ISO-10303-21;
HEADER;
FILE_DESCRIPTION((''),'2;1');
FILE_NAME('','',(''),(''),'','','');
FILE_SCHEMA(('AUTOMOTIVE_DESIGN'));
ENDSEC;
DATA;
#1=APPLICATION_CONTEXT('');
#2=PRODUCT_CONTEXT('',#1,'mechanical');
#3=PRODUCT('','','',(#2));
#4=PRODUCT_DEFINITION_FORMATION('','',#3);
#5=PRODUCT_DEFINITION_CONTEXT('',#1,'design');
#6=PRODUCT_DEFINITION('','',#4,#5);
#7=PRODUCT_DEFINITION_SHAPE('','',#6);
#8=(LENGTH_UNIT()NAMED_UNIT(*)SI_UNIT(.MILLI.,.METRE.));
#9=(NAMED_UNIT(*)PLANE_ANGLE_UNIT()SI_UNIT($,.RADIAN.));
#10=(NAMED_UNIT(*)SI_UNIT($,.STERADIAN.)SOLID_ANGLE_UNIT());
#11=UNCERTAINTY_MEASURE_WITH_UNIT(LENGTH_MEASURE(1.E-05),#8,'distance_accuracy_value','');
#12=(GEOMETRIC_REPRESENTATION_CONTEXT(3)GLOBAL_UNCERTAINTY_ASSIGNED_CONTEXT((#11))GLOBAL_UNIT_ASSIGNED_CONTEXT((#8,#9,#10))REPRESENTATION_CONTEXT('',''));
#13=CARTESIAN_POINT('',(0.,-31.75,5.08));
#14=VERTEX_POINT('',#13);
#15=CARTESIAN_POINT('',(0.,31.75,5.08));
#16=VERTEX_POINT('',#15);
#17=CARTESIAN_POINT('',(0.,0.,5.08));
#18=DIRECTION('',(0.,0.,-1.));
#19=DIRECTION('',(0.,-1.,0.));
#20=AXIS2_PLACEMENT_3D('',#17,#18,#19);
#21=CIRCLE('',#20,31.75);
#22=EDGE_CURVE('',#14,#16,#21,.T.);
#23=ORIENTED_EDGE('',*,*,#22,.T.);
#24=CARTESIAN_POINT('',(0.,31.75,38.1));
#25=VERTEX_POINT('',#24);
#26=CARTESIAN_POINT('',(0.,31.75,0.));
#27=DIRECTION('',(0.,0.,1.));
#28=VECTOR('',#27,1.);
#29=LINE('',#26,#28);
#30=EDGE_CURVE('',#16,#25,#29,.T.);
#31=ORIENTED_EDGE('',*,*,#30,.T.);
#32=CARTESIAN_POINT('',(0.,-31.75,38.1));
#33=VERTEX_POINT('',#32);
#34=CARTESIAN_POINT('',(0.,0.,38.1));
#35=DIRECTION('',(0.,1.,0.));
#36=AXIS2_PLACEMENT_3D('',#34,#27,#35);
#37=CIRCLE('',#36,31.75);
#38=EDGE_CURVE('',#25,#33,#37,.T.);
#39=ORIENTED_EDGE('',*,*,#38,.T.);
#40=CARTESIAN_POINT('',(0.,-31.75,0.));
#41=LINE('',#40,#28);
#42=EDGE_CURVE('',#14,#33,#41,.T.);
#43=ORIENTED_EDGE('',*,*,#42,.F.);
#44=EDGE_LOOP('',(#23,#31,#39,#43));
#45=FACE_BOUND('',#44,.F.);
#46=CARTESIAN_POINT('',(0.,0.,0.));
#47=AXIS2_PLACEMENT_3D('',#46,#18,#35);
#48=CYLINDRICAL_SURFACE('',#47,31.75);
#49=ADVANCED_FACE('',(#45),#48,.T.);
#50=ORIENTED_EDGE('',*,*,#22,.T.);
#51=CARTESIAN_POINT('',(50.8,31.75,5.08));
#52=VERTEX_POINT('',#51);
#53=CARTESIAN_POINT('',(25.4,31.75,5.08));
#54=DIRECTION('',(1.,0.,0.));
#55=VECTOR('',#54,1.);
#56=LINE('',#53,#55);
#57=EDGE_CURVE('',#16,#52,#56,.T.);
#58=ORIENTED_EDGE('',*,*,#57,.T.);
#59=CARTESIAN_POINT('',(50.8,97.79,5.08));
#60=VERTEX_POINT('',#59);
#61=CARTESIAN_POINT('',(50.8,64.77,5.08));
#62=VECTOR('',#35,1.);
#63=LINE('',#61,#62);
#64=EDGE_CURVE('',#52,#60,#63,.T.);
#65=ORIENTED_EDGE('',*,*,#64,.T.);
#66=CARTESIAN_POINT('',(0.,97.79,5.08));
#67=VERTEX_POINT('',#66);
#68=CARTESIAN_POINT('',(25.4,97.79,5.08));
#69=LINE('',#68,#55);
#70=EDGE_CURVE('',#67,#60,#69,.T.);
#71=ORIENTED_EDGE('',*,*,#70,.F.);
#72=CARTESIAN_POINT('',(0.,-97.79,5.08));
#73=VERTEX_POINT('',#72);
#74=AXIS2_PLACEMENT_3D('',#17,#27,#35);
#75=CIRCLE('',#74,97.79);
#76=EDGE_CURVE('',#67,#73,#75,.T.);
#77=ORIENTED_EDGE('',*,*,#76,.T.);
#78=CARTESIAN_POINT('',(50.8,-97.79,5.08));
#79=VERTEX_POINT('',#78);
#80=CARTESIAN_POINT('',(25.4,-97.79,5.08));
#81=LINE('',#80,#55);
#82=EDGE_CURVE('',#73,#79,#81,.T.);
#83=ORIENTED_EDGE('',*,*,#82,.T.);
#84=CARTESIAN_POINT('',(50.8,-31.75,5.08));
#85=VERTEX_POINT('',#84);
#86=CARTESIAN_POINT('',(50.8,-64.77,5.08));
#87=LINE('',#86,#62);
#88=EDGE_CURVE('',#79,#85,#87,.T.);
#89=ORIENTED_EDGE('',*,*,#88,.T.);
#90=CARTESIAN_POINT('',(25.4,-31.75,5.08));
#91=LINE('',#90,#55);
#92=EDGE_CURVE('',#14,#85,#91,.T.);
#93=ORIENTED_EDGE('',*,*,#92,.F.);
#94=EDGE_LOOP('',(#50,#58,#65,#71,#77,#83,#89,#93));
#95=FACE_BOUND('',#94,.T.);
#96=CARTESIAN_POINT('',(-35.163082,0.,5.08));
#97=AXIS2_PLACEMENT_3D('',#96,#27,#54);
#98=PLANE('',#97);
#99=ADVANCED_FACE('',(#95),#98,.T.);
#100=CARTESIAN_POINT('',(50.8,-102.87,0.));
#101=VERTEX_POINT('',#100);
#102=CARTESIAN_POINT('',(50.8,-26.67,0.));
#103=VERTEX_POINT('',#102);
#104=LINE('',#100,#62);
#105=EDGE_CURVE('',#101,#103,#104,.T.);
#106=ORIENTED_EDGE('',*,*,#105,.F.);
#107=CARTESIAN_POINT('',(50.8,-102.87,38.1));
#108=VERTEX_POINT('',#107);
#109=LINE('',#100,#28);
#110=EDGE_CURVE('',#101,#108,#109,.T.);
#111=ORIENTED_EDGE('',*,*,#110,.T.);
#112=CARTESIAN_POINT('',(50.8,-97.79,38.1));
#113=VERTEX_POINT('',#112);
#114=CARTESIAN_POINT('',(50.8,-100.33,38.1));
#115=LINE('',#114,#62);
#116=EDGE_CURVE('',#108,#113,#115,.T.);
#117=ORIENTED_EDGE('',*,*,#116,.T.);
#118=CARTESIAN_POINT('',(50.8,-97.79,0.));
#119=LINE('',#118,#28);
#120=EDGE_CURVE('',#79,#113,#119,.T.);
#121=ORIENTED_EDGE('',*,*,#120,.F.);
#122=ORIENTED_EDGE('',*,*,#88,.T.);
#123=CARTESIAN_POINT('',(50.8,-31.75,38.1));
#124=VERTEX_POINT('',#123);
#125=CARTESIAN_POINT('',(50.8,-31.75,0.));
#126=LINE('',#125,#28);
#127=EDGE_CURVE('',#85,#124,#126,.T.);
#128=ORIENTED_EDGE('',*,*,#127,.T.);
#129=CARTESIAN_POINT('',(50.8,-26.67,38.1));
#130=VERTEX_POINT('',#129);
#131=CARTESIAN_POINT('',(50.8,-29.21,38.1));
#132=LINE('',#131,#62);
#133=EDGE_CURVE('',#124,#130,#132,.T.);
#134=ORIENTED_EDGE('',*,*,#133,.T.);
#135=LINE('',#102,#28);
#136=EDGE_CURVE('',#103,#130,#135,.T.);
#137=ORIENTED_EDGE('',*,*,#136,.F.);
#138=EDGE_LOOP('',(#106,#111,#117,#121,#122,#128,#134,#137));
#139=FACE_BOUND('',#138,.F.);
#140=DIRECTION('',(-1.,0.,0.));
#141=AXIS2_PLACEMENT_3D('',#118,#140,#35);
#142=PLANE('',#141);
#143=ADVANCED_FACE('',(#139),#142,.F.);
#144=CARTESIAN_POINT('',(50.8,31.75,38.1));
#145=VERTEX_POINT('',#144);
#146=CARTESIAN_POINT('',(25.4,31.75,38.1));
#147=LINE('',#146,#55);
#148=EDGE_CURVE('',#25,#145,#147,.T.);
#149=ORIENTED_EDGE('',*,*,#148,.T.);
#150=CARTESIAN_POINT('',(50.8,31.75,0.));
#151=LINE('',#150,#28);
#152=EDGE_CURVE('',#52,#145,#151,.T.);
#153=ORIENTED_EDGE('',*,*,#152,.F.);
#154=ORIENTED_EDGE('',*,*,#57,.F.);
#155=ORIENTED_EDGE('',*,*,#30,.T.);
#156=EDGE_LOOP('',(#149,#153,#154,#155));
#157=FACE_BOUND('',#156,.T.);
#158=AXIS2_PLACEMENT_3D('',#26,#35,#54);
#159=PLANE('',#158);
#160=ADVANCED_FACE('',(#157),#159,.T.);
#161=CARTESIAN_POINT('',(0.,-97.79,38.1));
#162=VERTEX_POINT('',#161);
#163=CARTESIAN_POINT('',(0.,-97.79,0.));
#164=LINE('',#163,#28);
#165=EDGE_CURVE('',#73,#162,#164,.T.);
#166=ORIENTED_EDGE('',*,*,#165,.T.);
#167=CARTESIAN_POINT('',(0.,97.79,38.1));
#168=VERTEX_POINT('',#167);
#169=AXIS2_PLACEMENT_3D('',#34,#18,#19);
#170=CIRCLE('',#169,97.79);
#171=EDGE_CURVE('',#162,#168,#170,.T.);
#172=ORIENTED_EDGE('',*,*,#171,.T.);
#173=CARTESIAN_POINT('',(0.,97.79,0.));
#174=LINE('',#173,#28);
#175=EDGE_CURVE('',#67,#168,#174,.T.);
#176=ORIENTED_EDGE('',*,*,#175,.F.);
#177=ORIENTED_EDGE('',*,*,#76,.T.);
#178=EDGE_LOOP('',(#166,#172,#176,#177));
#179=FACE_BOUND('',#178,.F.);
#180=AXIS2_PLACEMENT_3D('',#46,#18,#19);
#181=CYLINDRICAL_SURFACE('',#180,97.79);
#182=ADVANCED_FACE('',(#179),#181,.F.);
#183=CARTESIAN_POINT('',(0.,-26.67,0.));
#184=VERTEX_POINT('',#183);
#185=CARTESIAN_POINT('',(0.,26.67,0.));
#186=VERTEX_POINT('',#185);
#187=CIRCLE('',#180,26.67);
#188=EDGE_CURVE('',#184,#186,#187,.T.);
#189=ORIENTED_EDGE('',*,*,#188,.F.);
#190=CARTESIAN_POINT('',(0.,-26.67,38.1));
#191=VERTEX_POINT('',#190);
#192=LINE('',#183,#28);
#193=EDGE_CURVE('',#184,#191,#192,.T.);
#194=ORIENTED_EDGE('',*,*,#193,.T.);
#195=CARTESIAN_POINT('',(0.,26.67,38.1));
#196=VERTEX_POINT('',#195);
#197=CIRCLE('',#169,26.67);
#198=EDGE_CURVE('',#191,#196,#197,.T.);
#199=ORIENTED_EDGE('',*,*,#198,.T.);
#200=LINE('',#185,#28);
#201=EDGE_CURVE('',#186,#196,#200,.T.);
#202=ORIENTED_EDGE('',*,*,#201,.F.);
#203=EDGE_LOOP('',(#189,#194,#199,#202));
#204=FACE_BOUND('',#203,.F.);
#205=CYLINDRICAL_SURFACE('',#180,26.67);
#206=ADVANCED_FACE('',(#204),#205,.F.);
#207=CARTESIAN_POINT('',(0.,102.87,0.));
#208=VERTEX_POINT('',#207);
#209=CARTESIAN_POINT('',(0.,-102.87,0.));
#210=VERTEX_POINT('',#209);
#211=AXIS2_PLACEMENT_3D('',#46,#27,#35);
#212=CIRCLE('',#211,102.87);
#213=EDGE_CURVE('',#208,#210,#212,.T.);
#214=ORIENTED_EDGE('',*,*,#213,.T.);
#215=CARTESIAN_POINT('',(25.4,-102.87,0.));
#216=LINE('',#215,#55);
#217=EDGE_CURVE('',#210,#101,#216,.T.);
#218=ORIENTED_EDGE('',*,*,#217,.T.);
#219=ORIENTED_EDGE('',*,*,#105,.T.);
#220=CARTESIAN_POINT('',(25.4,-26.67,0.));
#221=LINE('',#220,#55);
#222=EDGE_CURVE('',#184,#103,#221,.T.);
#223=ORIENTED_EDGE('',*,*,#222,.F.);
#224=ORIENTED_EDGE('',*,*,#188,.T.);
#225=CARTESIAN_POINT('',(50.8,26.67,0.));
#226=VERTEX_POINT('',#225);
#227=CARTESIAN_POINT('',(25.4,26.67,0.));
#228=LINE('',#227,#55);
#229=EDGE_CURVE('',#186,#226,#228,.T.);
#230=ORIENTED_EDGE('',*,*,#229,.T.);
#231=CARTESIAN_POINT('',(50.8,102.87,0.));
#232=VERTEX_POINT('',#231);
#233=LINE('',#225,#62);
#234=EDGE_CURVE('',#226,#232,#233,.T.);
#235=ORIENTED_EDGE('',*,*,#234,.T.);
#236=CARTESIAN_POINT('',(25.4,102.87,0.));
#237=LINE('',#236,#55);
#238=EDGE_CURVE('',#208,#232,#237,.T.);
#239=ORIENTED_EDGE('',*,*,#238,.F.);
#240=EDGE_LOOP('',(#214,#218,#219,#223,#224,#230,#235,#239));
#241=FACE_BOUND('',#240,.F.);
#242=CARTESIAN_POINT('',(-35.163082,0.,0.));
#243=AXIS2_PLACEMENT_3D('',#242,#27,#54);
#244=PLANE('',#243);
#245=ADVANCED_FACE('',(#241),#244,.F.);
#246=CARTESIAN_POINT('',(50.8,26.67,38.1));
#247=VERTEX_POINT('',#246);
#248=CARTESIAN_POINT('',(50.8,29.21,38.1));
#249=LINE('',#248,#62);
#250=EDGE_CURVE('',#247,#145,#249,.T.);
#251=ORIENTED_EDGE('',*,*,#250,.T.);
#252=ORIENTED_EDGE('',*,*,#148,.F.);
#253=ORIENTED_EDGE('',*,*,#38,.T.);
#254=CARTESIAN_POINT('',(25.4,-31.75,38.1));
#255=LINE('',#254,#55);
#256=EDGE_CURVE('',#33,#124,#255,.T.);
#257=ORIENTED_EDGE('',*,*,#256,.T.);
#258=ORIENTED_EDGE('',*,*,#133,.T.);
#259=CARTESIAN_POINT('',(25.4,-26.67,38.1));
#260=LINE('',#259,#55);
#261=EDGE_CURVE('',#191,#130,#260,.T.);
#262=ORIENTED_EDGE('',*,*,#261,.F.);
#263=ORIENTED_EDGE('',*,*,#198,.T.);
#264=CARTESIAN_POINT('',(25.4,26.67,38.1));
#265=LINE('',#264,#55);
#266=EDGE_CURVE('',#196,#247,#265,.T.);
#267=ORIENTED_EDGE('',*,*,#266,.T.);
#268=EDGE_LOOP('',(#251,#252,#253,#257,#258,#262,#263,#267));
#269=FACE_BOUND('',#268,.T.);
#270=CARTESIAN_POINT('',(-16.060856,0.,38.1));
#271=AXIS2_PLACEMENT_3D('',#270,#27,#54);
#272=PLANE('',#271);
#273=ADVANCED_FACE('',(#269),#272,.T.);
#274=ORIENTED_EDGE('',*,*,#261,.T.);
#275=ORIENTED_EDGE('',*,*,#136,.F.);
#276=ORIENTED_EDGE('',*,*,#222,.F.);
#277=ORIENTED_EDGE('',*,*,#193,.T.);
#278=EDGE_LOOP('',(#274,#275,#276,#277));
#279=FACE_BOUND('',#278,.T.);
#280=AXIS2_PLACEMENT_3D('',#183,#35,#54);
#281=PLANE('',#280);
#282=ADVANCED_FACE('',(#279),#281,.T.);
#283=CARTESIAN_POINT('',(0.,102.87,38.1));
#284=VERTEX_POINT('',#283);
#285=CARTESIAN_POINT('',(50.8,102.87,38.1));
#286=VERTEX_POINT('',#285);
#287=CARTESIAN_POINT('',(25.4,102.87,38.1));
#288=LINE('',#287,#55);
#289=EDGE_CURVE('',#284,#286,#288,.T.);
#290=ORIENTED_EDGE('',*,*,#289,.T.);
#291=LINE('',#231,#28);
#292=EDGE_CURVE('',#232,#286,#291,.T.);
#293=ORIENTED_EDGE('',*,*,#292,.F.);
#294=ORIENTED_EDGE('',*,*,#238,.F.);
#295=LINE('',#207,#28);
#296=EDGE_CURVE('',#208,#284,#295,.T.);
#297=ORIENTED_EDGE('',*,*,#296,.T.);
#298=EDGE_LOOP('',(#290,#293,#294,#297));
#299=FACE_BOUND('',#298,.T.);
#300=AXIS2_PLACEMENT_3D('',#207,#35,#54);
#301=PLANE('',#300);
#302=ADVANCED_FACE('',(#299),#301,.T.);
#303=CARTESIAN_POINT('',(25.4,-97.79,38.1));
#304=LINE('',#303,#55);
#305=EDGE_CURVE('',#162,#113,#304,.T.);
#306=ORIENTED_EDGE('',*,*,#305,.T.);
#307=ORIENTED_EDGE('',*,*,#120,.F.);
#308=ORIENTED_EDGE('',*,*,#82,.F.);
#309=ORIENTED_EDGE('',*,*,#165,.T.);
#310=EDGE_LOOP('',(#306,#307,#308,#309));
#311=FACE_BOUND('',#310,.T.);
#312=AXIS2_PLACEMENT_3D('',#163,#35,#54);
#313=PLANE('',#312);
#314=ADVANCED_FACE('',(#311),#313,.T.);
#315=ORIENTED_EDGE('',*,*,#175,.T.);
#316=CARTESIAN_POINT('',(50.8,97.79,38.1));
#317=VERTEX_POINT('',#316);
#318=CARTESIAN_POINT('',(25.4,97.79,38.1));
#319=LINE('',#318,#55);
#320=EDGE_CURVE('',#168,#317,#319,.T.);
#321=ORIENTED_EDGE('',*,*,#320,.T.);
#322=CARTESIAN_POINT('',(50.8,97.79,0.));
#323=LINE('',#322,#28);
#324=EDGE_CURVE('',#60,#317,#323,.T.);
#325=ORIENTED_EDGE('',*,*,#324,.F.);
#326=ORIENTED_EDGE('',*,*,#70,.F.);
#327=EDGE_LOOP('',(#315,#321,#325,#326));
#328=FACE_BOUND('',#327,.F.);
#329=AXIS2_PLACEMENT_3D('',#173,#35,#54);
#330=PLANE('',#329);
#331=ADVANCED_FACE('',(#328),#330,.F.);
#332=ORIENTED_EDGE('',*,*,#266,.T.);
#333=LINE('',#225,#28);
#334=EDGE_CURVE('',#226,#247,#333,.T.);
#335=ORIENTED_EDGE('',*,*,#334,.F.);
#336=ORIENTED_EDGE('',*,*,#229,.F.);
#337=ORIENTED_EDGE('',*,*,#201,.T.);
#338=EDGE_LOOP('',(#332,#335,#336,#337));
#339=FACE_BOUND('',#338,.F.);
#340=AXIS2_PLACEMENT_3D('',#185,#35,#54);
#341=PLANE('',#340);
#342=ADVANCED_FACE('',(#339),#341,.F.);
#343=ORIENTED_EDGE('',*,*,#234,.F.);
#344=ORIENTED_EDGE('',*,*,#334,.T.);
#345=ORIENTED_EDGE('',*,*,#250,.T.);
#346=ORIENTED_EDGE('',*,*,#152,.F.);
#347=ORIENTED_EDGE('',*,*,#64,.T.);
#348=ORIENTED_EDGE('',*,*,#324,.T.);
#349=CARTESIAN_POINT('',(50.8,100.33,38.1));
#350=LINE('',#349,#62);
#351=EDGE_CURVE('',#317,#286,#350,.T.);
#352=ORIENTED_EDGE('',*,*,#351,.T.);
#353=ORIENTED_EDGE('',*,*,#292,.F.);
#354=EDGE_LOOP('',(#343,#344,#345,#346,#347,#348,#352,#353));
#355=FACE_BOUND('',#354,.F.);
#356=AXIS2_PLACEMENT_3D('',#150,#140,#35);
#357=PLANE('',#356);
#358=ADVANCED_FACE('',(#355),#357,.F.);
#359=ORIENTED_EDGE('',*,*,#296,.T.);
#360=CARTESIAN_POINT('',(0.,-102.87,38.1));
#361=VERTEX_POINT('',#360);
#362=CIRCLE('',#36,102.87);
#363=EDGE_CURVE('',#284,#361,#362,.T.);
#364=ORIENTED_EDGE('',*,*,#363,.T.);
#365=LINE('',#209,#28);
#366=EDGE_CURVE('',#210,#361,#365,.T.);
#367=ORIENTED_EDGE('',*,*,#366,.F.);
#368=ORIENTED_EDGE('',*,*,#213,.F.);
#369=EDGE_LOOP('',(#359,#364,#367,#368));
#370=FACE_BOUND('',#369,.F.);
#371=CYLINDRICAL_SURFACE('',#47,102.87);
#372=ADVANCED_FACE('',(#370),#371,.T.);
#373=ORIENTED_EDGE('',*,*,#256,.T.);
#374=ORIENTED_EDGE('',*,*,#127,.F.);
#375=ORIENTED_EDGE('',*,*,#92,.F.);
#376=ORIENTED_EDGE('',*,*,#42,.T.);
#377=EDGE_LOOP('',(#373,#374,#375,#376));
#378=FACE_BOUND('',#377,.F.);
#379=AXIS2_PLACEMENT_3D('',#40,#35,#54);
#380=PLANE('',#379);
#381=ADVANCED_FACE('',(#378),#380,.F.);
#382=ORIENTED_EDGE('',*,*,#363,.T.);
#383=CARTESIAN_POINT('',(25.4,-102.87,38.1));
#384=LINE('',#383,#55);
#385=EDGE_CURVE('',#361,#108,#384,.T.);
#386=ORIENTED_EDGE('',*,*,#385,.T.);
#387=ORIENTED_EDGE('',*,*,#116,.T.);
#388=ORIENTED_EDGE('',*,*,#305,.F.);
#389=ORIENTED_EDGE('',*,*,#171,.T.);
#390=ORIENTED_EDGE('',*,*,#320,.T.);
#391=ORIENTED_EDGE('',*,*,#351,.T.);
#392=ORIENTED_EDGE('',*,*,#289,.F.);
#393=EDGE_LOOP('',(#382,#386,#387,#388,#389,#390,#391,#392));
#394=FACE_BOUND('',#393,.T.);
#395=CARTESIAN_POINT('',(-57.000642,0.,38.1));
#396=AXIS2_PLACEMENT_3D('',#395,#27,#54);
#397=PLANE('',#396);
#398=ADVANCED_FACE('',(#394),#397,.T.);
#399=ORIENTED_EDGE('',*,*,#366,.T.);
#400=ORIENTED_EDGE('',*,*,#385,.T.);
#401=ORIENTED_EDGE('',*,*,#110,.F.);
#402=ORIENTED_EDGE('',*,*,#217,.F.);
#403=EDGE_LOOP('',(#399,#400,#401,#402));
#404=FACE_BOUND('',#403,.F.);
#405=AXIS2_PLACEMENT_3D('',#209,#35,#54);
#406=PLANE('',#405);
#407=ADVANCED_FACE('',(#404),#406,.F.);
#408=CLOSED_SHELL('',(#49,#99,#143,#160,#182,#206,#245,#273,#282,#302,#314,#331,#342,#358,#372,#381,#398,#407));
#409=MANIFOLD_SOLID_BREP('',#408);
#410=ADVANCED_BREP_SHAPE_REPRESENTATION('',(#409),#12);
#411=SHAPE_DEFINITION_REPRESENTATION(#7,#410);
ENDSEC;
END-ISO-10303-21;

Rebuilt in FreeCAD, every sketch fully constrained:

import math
import FreeCAD as App
import Part
import Sketcher
from FreeCAD import Vector
Q = App.Units.Quantity

doc = App.newDocument("Part")
body = doc.addObject("PartDesign::Body", "Body")

# Sketch on XY plane
sketch1 = body.newObject("Sketcher::SketchObject", "Sketch")
sketch1.AttachmentSupport = (doc.getObject("XY_Plane"), [""])
sketch1.MapMode = "FlatFace"
sketch1.addGeometry([
    Part.ArcOfCircle(Part.Circle(Vector(0, 0, 0), Vector(0, 0, 1), 31.75), math.radians(90), math.radians(270)),  # 0
    Part.LineSegment(Vector(0, 31.75, 0), Vector(50.8, 31.75, 0)),  # 1
    Part.LineSegment(Vector(50.8, 31.75, 0), Vector(50.8, 97.79, 0)),  # 2
    Part.LineSegment(Vector(50.8, 97.79, 0), Vector(0, 97.79, 0)),  # 3
    Part.ArcOfCircle(Part.Circle(Vector(0, 0, 0), Vector(0, 0, 1), 97.79), math.radians(90), math.radians(270)),  # 4
    Part.LineSegment(Vector(0, -97.79, 0), Vector(50.8, -97.79, 0)),  # 5
    Part.LineSegment(Vector(50.8, -97.79, 0), Vector(50.8, -31.75, 0)),  # 6
    Part.LineSegment(Vector(50.8, -31.75, 0), Vector(0, -31.75, 0)),  # 7
], False)
sketch1.addConstraint([
    Sketcher.Constraint("Tangent", 0, 1, 1, 1),
    Sketcher.Constraint("Coincident", 1, 2, 2, 1),
    Sketcher.Constraint("Coincident", 2, 2, 3, 1),
    Sketcher.Constraint("Tangent", 3, 2, 4, 1),
    Sketcher.Constraint("Tangent", 4, 2, 5, 1),
    Sketcher.Constraint("Coincident", 5, 2, 6, 1),
    Sketcher.Constraint("Coincident", 6, 2, 7, 1),
    Sketcher.Constraint("Tangent", 7, 2, 0, 2),
    Sketcher.Constraint("Horizontal", 1),
    Sketcher.Constraint("Vertical", 2),
    Sketcher.Constraint("Horizontal", 3),
    Sketcher.Constraint("Horizontal", 5),
    Sketcher.Constraint("Vertical", 6),
    Sketcher.Constraint("Horizontal", 7),
    Sketcher.Constraint("Coincident", 0, 3, -1, 1),
    Sketcher.Constraint("Coincident", 4, 3, -1, 1),
    Sketcher.Constraint("Vertical", 2, 2, 5, 2),
    Sketcher.Constraint("DistanceX", 1, 1, 1, 2, Q("2 in")),
    Sketcher.Constraint("Radius", 0, Q("1.25 in")),
    Sketcher.Constraint("Radius", 4, Q("3.85 in")),
])
pad1 = body.newObject("PartDesign::Pad", "Pad")
pad1.Profile = sketch1
pad1.Length = Q("0.2 in")

# Sketch on XY plane
sketch2 = body.newObject("Sketcher::SketchObject", "Sketch001")
sketch2.AttachmentSupport = (doc.getObject("XY_Plane"), [""])
sketch2.MapMode = "FlatFace"
sketch2.addGeometry([
    Part.ArcOfCircle(Part.Circle(Vector(0, 0, 0), Vector(0, 0, 1), 97.79), math.radians(90), math.radians(270)),  # 0
    Part.LineSegment(Vector(0, 97.79, 0), Vector(50.8, 97.79, 0)),  # 1
    Part.LineSegment(Vector(50.8, 97.79, 0), Vector(50.8, 102.87, 0)),  # 2
    Part.LineSegment(Vector(50.8, 102.87, 0), Vector(0, 102.87, 0)),  # 3
    Part.ArcOfCircle(Part.Circle(Vector(0, 0, 0), Vector(0, 0, 1), 102.87), math.radians(90), math.radians(270)),  # 4
    Part.LineSegment(Vector(0, -102.87, 0), Vector(50.8, -102.87, 0)),  # 5
    Part.LineSegment(Vector(50.8, -102.87, 0), Vector(50.8, -97.79, 0)),  # 6
    Part.LineSegment(Vector(50.8, -97.79, 0), Vector(0, -97.79, 0)),  # 7
    Part.ArcOfCircle(Part.Circle(Vector(0, 0, 0), Vector(0, 0, 1), 31.75), math.radians(90), math.radians(270)),  # 8
    Part.LineSegment(Vector(0, -31.75, 0), Vector(50.8, -31.75, 0)),  # 9
    Part.LineSegment(Vector(50.8, -31.75, 0), Vector(50.8, -26.67, 0)),  # 10
    Part.LineSegment(Vector(50.8, -26.67, 0), Vector(0, -26.67, 0)),  # 11
    Part.ArcOfCircle(Part.Circle(Vector(0, 0, 0), Vector(0, 0, 1), 26.67), math.radians(90), math.radians(270)),  # 12
    Part.LineSegment(Vector(0, 26.67, 0), Vector(50.8, 26.67, 0)),  # 13
    Part.LineSegment(Vector(50.8, 26.67, 0), Vector(50.8, 31.75, 0)),  # 14
    Part.LineSegment(Vector(50.8, 31.75, 0), Vector(0, 31.75, 0)),  # 15
], False)
sketch2.addConstraint([
    Sketcher.Constraint("Tangent", 0, 1, 1, 1),
    Sketcher.Constraint("Coincident", 1, 2, 2, 1),
    Sketcher.Constraint("Coincident", 2, 2, 3, 1),
    Sketcher.Constraint("Tangent", 3, 2, 4, 1),
    Sketcher.Constraint("Tangent", 4, 2, 5, 1),
    Sketcher.Constraint("Coincident", 5, 2, 6, 1),
    Sketcher.Constraint("Coincident", 6, 2, 7, 1),
    Sketcher.Constraint("Tangent", 7, 2, 0, 2),
    Sketcher.Constraint("Tangent", 8, 2, 9, 1),
    Sketcher.Constraint("Coincident", 9, 2, 10, 1),
    Sketcher.Constraint("Coincident", 10, 2, 11, 1),
    Sketcher.Constraint("Tangent", 11, 2, 12, 2),
    Sketcher.Constraint("Tangent", 12, 1, 13, 1),
    Sketcher.Constraint("Coincident", 13, 2, 14, 1),
    Sketcher.Constraint("Coincident", 14, 2, 15, 1),
    Sketcher.Constraint("Tangent", 15, 2, 8, 1),
    Sketcher.Constraint("Horizontal", 1),
    Sketcher.Constraint("Vertical", 2),
    Sketcher.Constraint("Horizontal", 3),
    Sketcher.Constraint("Horizontal", 5),
    Sketcher.Constraint("Vertical", 6),
    Sketcher.Constraint("Horizontal", 7),
    Sketcher.Constraint("Horizontal", 9),
    Sketcher.Constraint("Vertical", 10),
    Sketcher.Constraint("Horizontal", 11),
    Sketcher.Constraint("Horizontal", 13),
    Sketcher.Constraint("Vertical", 14),
    Sketcher.Constraint("Horizontal", 15),
    Sketcher.Constraint("Coincident", 0, 3, -1, 1),
    Sketcher.Constraint("Coincident", 4, 3, -1, 1),
    Sketcher.Constraint("Coincident", 8, 3, -1, 1),
    Sketcher.Constraint("Coincident", 12, 3, -1, 1),
    Sketcher.Constraint("Vertical", 2, 2, 5, 2),
    Sketcher.Constraint("Vertical", 6, 2, 9, 2),
    Sketcher.Constraint("Vertical", 10, 2, 13, 2),
    Sketcher.Constraint("Equal", 6, 10),
    Sketcher.Constraint("DistanceX", 1, 1, 1, 2, Q("2 in")),
    Sketcher.Constraint("Radius", 0, Q("3.85 in")),
    Sketcher.Constraint("Radius", 4, Q("4.05 in")),
    Sketcher.Constraint("Radius", 8, Q("1.25 in")),
])
pad2 = body.newObject("PartDesign::Pad", "Pad001")
pad2.Profile = sketch2
pad2.Length = Q("1.5 in")

doc.recompute()
